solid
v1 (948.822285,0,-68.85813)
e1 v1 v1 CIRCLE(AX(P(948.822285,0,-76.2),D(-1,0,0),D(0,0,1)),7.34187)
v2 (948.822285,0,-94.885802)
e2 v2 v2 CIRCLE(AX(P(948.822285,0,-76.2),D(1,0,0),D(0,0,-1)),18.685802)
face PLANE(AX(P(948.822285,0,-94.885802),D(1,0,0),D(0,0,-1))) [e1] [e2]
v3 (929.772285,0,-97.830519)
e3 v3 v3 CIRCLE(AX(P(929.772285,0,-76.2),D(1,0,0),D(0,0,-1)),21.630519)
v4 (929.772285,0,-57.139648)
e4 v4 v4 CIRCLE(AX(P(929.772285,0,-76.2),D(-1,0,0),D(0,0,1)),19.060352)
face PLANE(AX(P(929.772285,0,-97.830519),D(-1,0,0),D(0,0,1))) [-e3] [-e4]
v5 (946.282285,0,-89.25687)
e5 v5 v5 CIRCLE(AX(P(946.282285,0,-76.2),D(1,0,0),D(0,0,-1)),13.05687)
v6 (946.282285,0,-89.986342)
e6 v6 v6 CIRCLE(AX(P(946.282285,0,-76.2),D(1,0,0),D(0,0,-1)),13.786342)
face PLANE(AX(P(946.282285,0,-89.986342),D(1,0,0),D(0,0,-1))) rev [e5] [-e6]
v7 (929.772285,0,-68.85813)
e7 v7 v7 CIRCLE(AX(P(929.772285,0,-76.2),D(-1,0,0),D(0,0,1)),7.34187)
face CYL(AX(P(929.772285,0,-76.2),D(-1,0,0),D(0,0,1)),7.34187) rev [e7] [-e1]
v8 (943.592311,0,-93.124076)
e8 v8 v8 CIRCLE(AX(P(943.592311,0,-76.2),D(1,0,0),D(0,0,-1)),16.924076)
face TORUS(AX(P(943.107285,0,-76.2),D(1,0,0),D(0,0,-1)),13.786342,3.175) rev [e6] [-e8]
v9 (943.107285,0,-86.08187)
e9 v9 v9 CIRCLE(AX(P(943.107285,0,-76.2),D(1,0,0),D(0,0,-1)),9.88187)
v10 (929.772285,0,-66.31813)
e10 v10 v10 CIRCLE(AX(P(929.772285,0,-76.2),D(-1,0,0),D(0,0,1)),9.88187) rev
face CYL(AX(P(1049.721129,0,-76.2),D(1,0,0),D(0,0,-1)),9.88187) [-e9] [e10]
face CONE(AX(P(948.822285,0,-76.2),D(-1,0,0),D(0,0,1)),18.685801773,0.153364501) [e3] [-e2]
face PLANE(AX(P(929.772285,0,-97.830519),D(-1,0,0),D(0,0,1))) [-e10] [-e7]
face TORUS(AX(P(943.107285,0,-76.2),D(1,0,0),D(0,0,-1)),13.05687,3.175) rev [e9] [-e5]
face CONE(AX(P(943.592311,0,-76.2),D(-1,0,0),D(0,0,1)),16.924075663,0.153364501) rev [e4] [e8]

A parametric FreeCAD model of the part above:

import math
import FreeCAD as App
import Part
import Sketcher
Q = App.Units.Quantity

doc = App.newDocument("Part")
body = doc.addObject("PartDesign::Body", "Body")

sketch1 = body.newObject("Sketcher::SketchObject", "Sketch")
sketch1.AttachmentSupport = (doc.getObject("XZ_Plane"), [""])
sketch1.MapMode = "FlatFace"
sketch1.addGeometry([
    Part.LineSegment(App.Vector(930, -98, 0), App.Vector(930, -76, 0)),
    Part.LineSegment(App.Vector(930, -76, 0), App.Vector(949, -76, 0)),
    Part.LineSegment(App.Vector(949, -76, 0), App.Vector(949, -95, 0)),
    Part.LineSegment(App.Vector(949, -95, 0), App.Vector(930, -98, 0)),
], False)
sketch1.addGeometry(Part.LineSegment(App.Vector(949, -76, 0), App.Vector(930, -76, 0)), True)
sketch1.addConstraint([
    Sketcher.Constraint("Coincident", 0, 2, 1, 1),
    Sketcher.Constraint("Coincident", 1, 2, 2, 1),
    Sketcher.Constraint("Coincident", 2, 2, 3, 1),
    Sketcher.Constraint("Coincident", 3, 2, 0, 1),
    Sketcher.Constraint("Vertical", 0),
    Sketcher.Constraint("Horizontal", 1),
    Sketcher.Constraint("Vertical", 2),
    Sketcher.Constraint("Horizontal", 4),
    Sketcher.Constraint("Coincident", 4, 1, 1, 2),
    Sketcher.Constraint("Vertical", 3, 2, 4, 2),
    Sketcher.Constraint("DistanceY", 0, 2, -1, 1, Q("3 in")),
    Sketcher.Constraint("DistanceX", 1, 1, 1, 2, Q("0.75 in")),
    Sketcher.Constraint("DistanceY", 2, 2, 2, 1, Q("18.685802 mm")),
    Sketcher.Constraint("DistanceY", 0, 1, 0, 2, Q("21.630519 mm")),
    Sketcher.Constraint("DistanceX", -1, 1, 0, 2, Q("929.772285 mm")),
])
revolution = body.newObject("PartDesign::Revolution", "Revolution")
revolution.Profile = sketch1
revolution.ReferenceAxis = (sketch1, ["Axis0"])
revolution.Angle = 360

sketch2 = body.newObject("Sketcher::SketchObject", "Sketch001")
sketch2.AttachmentSupport = (doc.getObject("YZ_Plane"), [""])
sketch2.MapMode = "FlatFace"
sketch2.AttachmentOffset = App.Placement(App.Vector(0, 0, 929.772285), App.Rotation())
sketch2.addGeometry(Part.Circle(App.Vector(0, -76, 0), App.Vector(0, 0, 1), 7), False)
sketch2.addConstraint([
    Sketcher.Constraint("PointOnObject", 0, 3, -2),
    Sketcher.Constraint("DistanceY", 0, 3, -1, 1, Q("3 in")),
    Sketcher.Constraint("Diameter", 0, Q("0.5781 in")),
])
doc.recompute()
hole = body.newObject("PartDesign::Hole", "Hole")
hole.Profile = sketch2
hole.ThreadType = "None"
hole.Diameter = Q("0.5781 in")
hole.DepthType = "ThroughAll"
hole.Reversed = True

sketch3 = body.newObject("Sketcher::SketchObject", "Sketch002")
sketch3.AttachmentSupport = (doc.getObject("XZ_Plane"), [""])
sketch3.MapMode = "FlatFace"
sketch3.addGeometry([
    Part.LineSegment(App.Vector(927.6, -95.6, 0), App.Vector(927.6, -86.1, 0)),
    Part.LineSegment(App.Vector(927.6, -86.1, 0), App.Vector(943.1, -86.1, 0)),
    Part.ArcOfCircle(Part.Circle(App.Vector(943.1, -89.3, 0), App.Vector(0, 0, 1), 3.2), math.radians(0), math.radians(90)),
    Part.LineSegment(App.Vector(946.3, -89.3, 0), App.Vector(946.3, -90, 0)),
    Part.ArcOfCircle(Part.Circle(App.Vector(943.1, -90, 0), App.Vector(0, 0, 1), 3.2), math.radians(-81), math.radians(0)),
    Part.LineSegment(App.Vector(943.6, -93.1, 0), App.Vector(927.6, -95.6, 0)),
], False)
sketch3.addGeometry(Part.LineSegment(App.Vector(946.3, -76.2, 0), App.Vector(927.6, -76.2, 0)), True)
sketch3.addConstraint([
    Sketcher.Constraint("Coincident", 0, 2, 1, 1),
    Sketcher.Constraint("Tangent", 1, 2, 2, 2),
    Sketcher.Constraint("Tangent", 2, 1, 3, 1),
    Sketcher.Constraint("Tangent", 3, 2, 4, 2),
    Sketcher.Constraint("Tangent", 4, 1, 5, 1),
    Sketcher.Constraint("Coincident", 5, 2, 0, 1),
    Sketcher.Constraint("Vertical", 0),
    Sketcher.Constraint("Horizontal", 1),
    Sketcher.Constraint("Vertical", 3),
    Sketcher.Constraint("Horizontal", 6),
    Sketcher.Constraint("Equal", 2, 4),
    Sketcher.Constraint("Vertical", 3, 2, 6, 1),
    Sketcher.Constraint("Vertical", 5, 2, 6, 2),
    Sketcher.Constraint("DistanceY", 6, 1, -1, 1, Q("3 in")),
    Sketcher.Constraint("Radius", 2, Q("0.125 in")),
    Sketcher.Constraint("DistanceY", 3, 2, 3, 1, Q("0.729472 mm")),
    Sketcher.Constraint("DistanceX", 1, 1, 1, 2, Q("15.498133 mm")),
    Sketcher.Constraint("DistanceY", 0, 1, 0, 2, Q("9.512856 mm")),
    Sketcher.Constraint("DistanceY", 2, 3, -1, 1, Q("89.25687 mm")),
    Sketcher.Constraint("DistanceX", -1, 1, 4, 1, Q("943.592311 mm")),
])
groove = body.newObject("PartDesign::Groove", "Groove")
groove.Profile = sketch3
groove.ReferenceAxis = (sketch3, ["Axis0"])
groove.Angle = 360

doc.recompute()
